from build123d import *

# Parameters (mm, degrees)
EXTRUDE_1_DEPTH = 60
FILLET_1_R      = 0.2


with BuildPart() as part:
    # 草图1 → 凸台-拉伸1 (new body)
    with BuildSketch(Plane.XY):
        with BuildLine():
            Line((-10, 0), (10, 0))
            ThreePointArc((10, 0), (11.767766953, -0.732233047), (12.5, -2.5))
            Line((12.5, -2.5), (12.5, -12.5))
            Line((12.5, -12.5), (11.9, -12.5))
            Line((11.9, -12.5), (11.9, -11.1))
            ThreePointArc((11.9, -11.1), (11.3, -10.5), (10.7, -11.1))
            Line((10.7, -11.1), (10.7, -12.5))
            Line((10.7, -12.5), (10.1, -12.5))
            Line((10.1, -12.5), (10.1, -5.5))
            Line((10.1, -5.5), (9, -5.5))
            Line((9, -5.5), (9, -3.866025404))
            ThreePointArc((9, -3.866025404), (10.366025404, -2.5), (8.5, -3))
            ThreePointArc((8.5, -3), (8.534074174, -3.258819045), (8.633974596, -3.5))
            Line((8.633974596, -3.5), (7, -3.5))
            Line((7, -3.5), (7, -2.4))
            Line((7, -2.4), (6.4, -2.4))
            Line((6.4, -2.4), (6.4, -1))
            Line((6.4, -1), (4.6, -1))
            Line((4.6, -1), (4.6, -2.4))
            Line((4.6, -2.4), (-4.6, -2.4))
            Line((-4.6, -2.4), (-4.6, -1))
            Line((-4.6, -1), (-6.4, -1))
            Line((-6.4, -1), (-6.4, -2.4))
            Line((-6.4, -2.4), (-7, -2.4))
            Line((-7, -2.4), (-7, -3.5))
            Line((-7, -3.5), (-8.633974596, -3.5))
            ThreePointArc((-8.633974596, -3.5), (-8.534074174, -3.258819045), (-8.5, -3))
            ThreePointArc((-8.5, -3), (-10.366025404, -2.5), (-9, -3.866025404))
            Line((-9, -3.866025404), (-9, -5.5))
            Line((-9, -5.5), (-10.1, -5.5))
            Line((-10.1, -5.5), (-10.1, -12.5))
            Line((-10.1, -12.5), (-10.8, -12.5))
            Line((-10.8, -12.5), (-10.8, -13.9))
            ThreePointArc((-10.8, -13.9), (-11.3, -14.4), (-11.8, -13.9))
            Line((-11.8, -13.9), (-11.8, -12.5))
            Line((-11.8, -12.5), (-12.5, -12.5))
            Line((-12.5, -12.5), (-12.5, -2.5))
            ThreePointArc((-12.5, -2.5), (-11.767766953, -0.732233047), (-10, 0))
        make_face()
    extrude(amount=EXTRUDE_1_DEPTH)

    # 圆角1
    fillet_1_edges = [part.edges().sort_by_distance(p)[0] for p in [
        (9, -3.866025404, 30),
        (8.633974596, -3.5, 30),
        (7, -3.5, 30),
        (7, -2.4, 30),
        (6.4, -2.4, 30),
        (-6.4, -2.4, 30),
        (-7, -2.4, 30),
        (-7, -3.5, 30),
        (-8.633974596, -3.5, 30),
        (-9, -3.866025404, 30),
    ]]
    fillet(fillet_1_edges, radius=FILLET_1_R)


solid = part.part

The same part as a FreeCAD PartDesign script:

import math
import FreeCAD as App
import Part
import Sketcher
Q = App.Units.Quantity


def edges_at(feature, points):
    """Names of the edges that pass closest to the given points."""
    edges = feature.Shape.Edges
    near = lambda p: min(range(len(edges)), key=lambda i: edges[i].distToShape(Part.Vertex(*p))[0])
    return sorted({f"Edge{near(p) + 1}" for p in points})

doc = App.newDocument("Part")
body = doc.addObject("PartDesign::Body", "Body")

# Sketch on XY plane
sketch1 = doc.addObject("Sketcher::SketchObject", "Sketch")
body.addObject(sketch1)
sketch1.AttachmentSupport = (doc.XY_Plane, [""])
sketch1.MapMode = "FlatFace"
sketch1.addGeometry(Part.LineSegment(App.Vector(10, 0, 0), App.Vector(-10, 0, 0)), False)
sketch1.addGeometry(Part.ArcOfCircle(Part.Circle(App.Vector(-10, -2.5, 0), App.Vector(0, 0, 1), 2.5), math.radians(90), math.radians(180)), False)
sketch1.addGeometry(Part.LineSegment(App.Vector(-12.5, -2.5, 0), App.Vector(-12.5, -12.5, 0)), False)
sketch1.addGeometry(Part.LineSegment(App.Vector(-12.5, -12.5, 0), App.Vector(-11.8, -12.5, 0)), False)
sketch1.addGeometry(Part.LineSegment(App.Vector(-11.8, -12.5, 0), App.Vector(-11.8, -13.9, 0)), False)
sketch1.addGeometry(Part.ArcOfCircle(Part.Circle(App.Vector(-11.3, -13.9, 0), App.Vector(0, 0, 1), 0.5), math.radians(180), math.radians(360)), False)
sketch1.addGeometry(Part.LineSegment(App.Vector(-10.8, -13.9, 0), App.Vector(-10.8, -12.5, 0)), False)
sketch1.addGeometry(Part.LineSegment(App.Vector(-10.8, -12.5, 0), App.Vector(-10.1, -12.5, 0)), False)
sketch1.addGeometry(Part.LineSegment(App.Vector(-10.1, -12.5, 0), App.Vector(-10.1, -5.5, 0)), False)
sketch1.addGeometry(Part.LineSegment(App.Vector(-10.1, -5.5, 0), App.Vector(-9, -5.5, 0)), False)
sketch1.addGeometry(Part.LineSegment(App.Vector(-9, -5.5, 0), App.Vector(-9, -3.9, 0)), False)
sketch1.addGeometry(Part.ArcOfCircle(Part.Circle(App.Vector(-9.5, -3, 0), App.Vector(0, 0, 1), 1), math.radians(0), math.radians(300)), False)
sketch1.addGeometry(Part.ArcOfCircle(Part.Circle(App.Vector(-9.5, -3, 0), App.Vector(0, 0, 1), 1), math.radians(-30), math.radians(0)), False)
sketch1.addGeometry(Part.LineSegment(App.Vector(-8.6, -3.5, 0), App.Vector(-7, -3.5, 0)), False)
sketch1.addGeometry(Part.LineSegment(App.Vector(-7, -3.5, 0), App.Vector(-7, -2.4, 0)), False)
sketch1.addGeometry(Part.LineSegment(App.Vector(-7, -2.4, 0), App.Vector(-6.4, -2.4, 0)), False)
sketch1.addGeometry(Part.LineSegment(App.Vector(-6.4, -2.4, 0), App.Vector(-6.4, -1, 0)), False)
sketch1.addGeometry(Part.LineSegment(App.Vector(-6.4, -1, 0), App.Vector(-4.6, -1, 0)), False)
sketch1.addGeometry(Part.LineSegment(App.Vector(-4.6, -1, 0), App.Vector(-4.6, -2.4, 0)), False)
sketch1.addGeometry(Part.LineSegment(App.Vector(-4.6, -2.4, 0), App.Vector(4.6, -2.4, 0)), False)
sketch1.addGeometry(Part.LineSegment(App.Vector(4.6, -2.4, 0), App.Vector(4.6, -1, 0)), False)
sketch1.addGeometry(Part.LineSegment(App.Vector(4.6, -1, 0), App.Vector(6.4, -1, 0)), False)
sketch1.addGeometry(Part.LineSegment(App.Vector(6.4, -1, 0), App.Vector(6.4, -2.4, 0)), False)
sketch1.addGeometry(Part.LineSegment(App.Vector(6.4, -2.4, 0), App.Vector(7, -2.4, 0)), False)
sketch1.addGeometry(Part.LineSegment(App.Vector(7, -2.4, 0), App.Vector(7, -3.5, 0)), False)
sketch1.addGeometry(Part.LineSegment(App.Vector(7, -3.5, 0), App.Vector(8.6, -3.5, 0)), False)
sketch1.addGeometry(Part.ArcOfCircle(Part.Circle(App.Vector(9.5, -3, 0), App.Vector(0, 0, 1), 1), math.radians(-180), math.radians(-150)), False)
sketch1.addGeometry(Part.ArcOfCircle(Part.Circle(App.Vector(9.5, -3, 0), App.Vector(0, 0, 1), 1), math.radians(-120), math.radians(180)), False)
sketch1.addGeometry(Part.LineSegment(App.Vector(9, -3.9, 0), App.Vector(9, -5.5, 0)), False)
sketch1.addGeometry(Part.LineSegment(App.Vector(9, -5.5, 0), App.Vector(10.1, -5.5, 0)), False)
sketch1.addGeometry(Part.LineSegment(App.Vector(10.1, -5.5, 0), App.Vector(10.1, -12.5, 0)), False)
sketch1.addGeometry(Part.LineSegment(App.Vector(10.1, -12.5, 0), App.Vector(10.7, -12.5, 0)), False)
sketch1.addGeometry(Part.LineSegment(App.Vector(10.7, -12.5, 0), App.Vector(10.7, -11.1, 0)), False)
sketch1.addGeometry(Part.ArcOfCircle(Part.Circle(App.Vector(11.3, -11.1, 0), App.Vector(0, 0, 1), 0.6), math.radians(0), math.radians(180)), False)
sketch1.addGeometry(Part.LineSegment(App.Vector(11.9, -11.1, 0), App.Vector(11.9, -12.5, 0)), False)
sketch1.addGeometry(Part.LineSegment(App.Vector(11.9, -12.5, 0), App.Vector(12.5, -12.5, 0)), False)
sketch1.addGeometry(Part.LineSegment(App.Vector(12.5, -12.5, 0), App.Vector(12.5, -2.5, 0)), False)
sketch1.addGeometry(Part.ArcOfCircle(Part.Circle(App.Vector(10, -2.5, 0), App.Vector(0, 0, 1), 2.5), math.radians(0), math.radians(90)), False)
sketch1.addConstraint(Sketcher.Constraint("Tangent", 0, 2, 1, 1))
sketch1.addConstraint(Sketcher.Constraint("Tangent", 1, 2, 2, 1))
sketch1.addConstraint(Sketcher.Constraint("Coincident", 2, 2, 3, 1))
sketch1.addConstraint(Sketcher.Constraint("Coincident", 3, 2, 4, 1))
sketch1.addConstraint(Sketcher.Constraint("Tangent", 4, 2, 5, 1))
sketch1.addConstraint(Sketcher.Constraint("Tangent", 5, 2, 6, 1))
sketch1.addConstraint(Sketcher.Constraint("Coincident", 6, 2, 7, 1))
sketch1.addConstraint(Sketcher.Constraint("Coincident", 7, 2, 8, 1))
sketch1.addConstraint(Sketcher.Constraint("Coincident", 8, 2, 9, 1))
sketch1.addConstraint(Sketcher.Constraint("Coincident", 9, 2, 10, 1))
sketch1.addConstraint(Sketcher.Constraint("Coincident", 10, 2, 11, 2))
sketch1.addConstraint(Sketcher.Constraint("Tangent", 11, 1, 12, 2))
sketch1.addConstraint(Sketcher.Constraint("Coincident", 12, 1, 13, 1))
sketch1.addConstraint(Sketcher.Constraint("Coincident", 13, 2, 14, 1))
sketch1.addConstraint(Sketcher.Constraint("Coincident", 14, 2, 15, 1))
sketch1.addConstraint(Sketcher.Constraint("Coincident", 15, 2, 16, 1))
sketch1.addConstraint(Sketcher.Constraint("Coincident", 16, 2, 17, 1))
sketch1.addConstraint(Sketcher.Constraint("Coincident", 17, 2, 18, 1))
sketch1.addConstraint(Sketcher.Constraint("Coincident", 18, 2, 19, 1))
sketch1.addConstraint(Sketcher.Constraint("Coincident", 19, 2, 20, 1))
sketch1.addConstraint(Sketcher.Constraint("Coincident", 20, 2, 21, 1))
sketch1.addConstraint(Sketcher.Constraint("Coincident", 21, 2, 22, 1))
sketch1.addConstraint(Sketcher.Constraint("Coincident", 22, 2, 23, 1))
sketch1.addConstraint(Sketcher.Constraint("Coincident", 23, 2, 24, 1))
sketch1.addConstraint(Sketcher.Constraint("Coincident", 24, 2, 25, 1))
sketch1.addConstraint(Sketcher.Constraint("Coincident", 25, 2, 26, 2))
sketch1.addConstraint(Sketcher.Constraint("Tangent", 26, 1, 27, 2))
sketch1.addConstraint(Sketcher.Constraint("Coincident", 27, 1, 28, 1))
sketch1.addConstraint(Sketcher.Constraint("Coincident", 28, 2, 29, 1))
sketch1.addConstraint(Sketcher.Constraint("Coincident", 29, 2, 30, 1))
sketch1.addConstraint(Sketcher.Constraint("Coincident", 30, 2, 31, 1))
sketch1.addConstraint(Sketcher.Constraint("Coincident", 31, 2, 32, 1))
sketch1.addConstraint(Sketcher.Constraint("Tangent", 32, 2, 33, 2))
sketch1.addConstraint(Sketcher.Constraint("Tangent", 33, 1, 34, 1))
sketch1.addConstraint(Sketcher.Constraint("Coincident", 34, 2, 35, 1))
sketch1.addConstraint(Sketcher.Constraint("Coincident", 35, 2, 36, 1))
sketch1.addConstraint(Sketcher.Constraint("Tangent", 36, 2, 37, 1))
sketch1.addConstraint(Sketcher.Constraint("Tangent", 37, 2, 0, 1))
sketch1.addConstraint(Sketcher.Constraint("Horizontal", 0))
sketch1.addConstraint(Sketcher.Constraint("Vertical", 2))
sketch1.addConstraint(Sketcher.Constraint("Horizontal", 3))
sketch1.addConstraint(Sketcher.Constraint("Vertical", 4))
sketch1.addConstraint(Sketcher.Constraint("Vertical", 6))
sketch1.addConstraint(Sketcher.Constraint("Horizontal", 7))
sketch1.addConstraint(Sketcher.Constraint("Vertical", 8))
sketch1.addConstraint(Sketcher.Constraint("Horizontal", 9))
sketch1.addConstraint(Sketcher.Constraint("Vertical", 10))
sketch1.addConstraint(Sketcher.Constraint("Horizontal", 13))
sketch1.addConstraint(Sketcher.Constraint("Vertical", 14))
sketch1.addConstraint(Sketcher.Constraint("Horizontal", 15))
sketch1.addConstraint(Sketcher.Constraint("Vertical", 16))
sketch1.addConstraint(Sketcher.Constraint("Horizontal", 17))
sketch1.addConstraint(Sketcher.Constraint("Vertical", 18))
sketch1.addConstraint(Sketcher.Constraint("Horizontal", 19))
sketch1.addConstraint(Sketcher.Constraint("Vertical", 20))
sketch1.addConstraint(Sketcher.Constraint("Horizontal", 21))
sketch1.addConstraint(Sketcher.Constraint("Vertical", 22))
sketch1.addConstraint(Sketcher.Constraint("Horizontal", 23))
sketch1.addConstraint(Sketcher.Constraint("Vertical", 24))
sketch1.addConstraint(Sketcher.Constraint("Horizontal", 25))
sketch1.addConstraint(Sketcher.Constraint("Vertical", 28))
sketch1.addConstraint(Sketcher.Constraint("Horizontal", 29))
sketch1.addConstraint(Sketcher.Constraint("Vertical", 30))
sketch1.addConstraint(Sketcher.Constraint("Horizontal", 31))
sketch1.addConstraint(Sketcher.Constraint("Vertical", 32))
sketch1.addConstraint(Sketcher.Constraint("Vertical", 34))
sketch1.addConstraint(Sketcher.Constraint("Horizontal", 35))
sketch1.addConstraint(Sketcher.Constraint("Vertical", 36))
sketch1.addConstraint(Sketcher.Constraint("Equal", 11, 12))
sketch1.addConstraint(Sketcher.Constraint("Equal", 12, 26))
sketch1.addConstraint(Sketcher.Constraint("Equal", 26, 27))
sketch1.addConstraint(Sketcher.Constraint("Equal", 1, 37))
sketch1.addConstraint(Sketcher.Constraint("Symmetric", 0, 2, 37, 2, -1, 1))
sketch1.addConstraint(Sketcher.Constraint("Symmetric", 11, 3, 26, 3, -2))
sketch1.addConstraint(Sketcher.Constraint("Symmetric", 17, 2, 20, 2, -2))
sketch1.addConstraint(Sketcher.Constraint("Symmetric", 15, 2, 22, 2, -2))
sketch1.addConstraint(Sketcher.Constraint("Symmetric", 13, 2, 24, 2, -2))
sketch1.addConstraint(Sketcher.Constraint("Symmetric", 9, 2, 28, 2, -2))
sketch1.addConstraint(Sketcher.Constraint("Symmetric", 7, 2, 30, 2, -2))
sketch1.addConstraint(Sketcher.Constraint("Horizontal", 3, 2, 6, 2))
sketch1.addConstraint(Sketcher.Constraint("Horizontal", 27, 3, 11, 1))
sketch1.addConstraint(Sketcher.Constraint("Horizontal", 15, 2, 18, 2))
sketch1.addConstraint(Sketcher.Constraint("Horizontal", 11, 1, 26, 1))
sketch1.addConstraint(Sketcher.Constraint("Horizontal", 31, 2, 34, 2))
sketch1.addConstraint(Sketcher.Constraint("Equal", 3, 7))
sketch1.addConstraint(Sketcher.Constraint("Equal", 23, 31))
sketch1.addConstraint(Sketcher.Constraint("Equal", 31, 35))
sketch1.addConstraint(Sketcher.Constraint("Equal", 25, 10))
sketch1.addConstraint(Sketcher.Constraint("Equal", 29, 14))
sketch1.addConstraint(Sketcher.Constraint("Equal", 6, 16))
sketch1.addConstraint(Sketcher.Constraint("Equal", 22, 32))
sketch1.addConstraint(Sketcher.Constraint("Radius", 11, Q("1 mm")))
sketch1.addConstraint(Sketcher.Constraint("Radius", 1, Q("2.5 mm")))
sketch1.addConstraint(Sketcher.Constraint("Radius", 5, Q("0.5 mm")))
sketch1.addConstraint(Sketcher.Constraint("Radius", 33, Q("0.6 mm")))
sketch1.addConstraint(Sketcher.Constraint("DistanceX", 0, 2, 0, 1, Q("20 mm")))
sketch1.addConstraint(Sketcher.Constraint("DistanceY", 2, 2, 2, 1, Q("10 mm")))
sketch1.addConstraint(Sketcher.Constraint("DistanceY", 8, 1, 8, 2, Q("7 mm")))
sketch1.addConstraint(Sketcher.Constraint("DistanceX", 3, 1, 3, 2, Q("0.7 mm")))
sketch1.addConstraint(Sketcher.Constraint("DistanceX", 9, 1, 9, 2, Q("1.1 mm")))
sketch1.addConstraint(Sketcher.Constraint("DistanceX", 17, 1, 17, 2, Q("1.8 mm")))
sketch1.addConstraint(Sketcher.Constraint("DistanceX", 19, 1, 19, 2, Q("9.2 mm")))
sketch1.addConstraint(Sketcher.Constraint("DistanceY", 4, 2, 4, 1, Q("1.4 mm")))
sketch1.addConstraint(Sketcher.Constraint("DistanceY", 11, 3, -1, 1, Q("3 mm")))
sketch1.addConstraint(Sketcher.Constraint("DistanceY", 16, 2, -1, 1, Q("1 mm")))
pad1 = doc.addObject("PartDesign::Pad", "Pad")
body.addObject(pad1)
pad1.Profile = sketch1
pad1.Length = 60
doc.recompute()

fillet = doc.addObject("PartDesign::Fillet", "Fillet")
body.addObject(fillet)
fillet.Base = (pad1, edges_at(pad1, [
    (9, -3.866, 30),
    (8.634, -3.5, 30),
    (7, -3.5, 30),
    (7, -2.4, 30),
    (6.4, -2.4, 30),
    (-6.4, -2.4, 30),
    (-7, -2.4, 30),
    (-7, -3.5, 30),
    (-8.634, -3.5, 30),
    (-9, -3.866, 30),
]))
fillet.Radius = 0.2

doc.recompute()
